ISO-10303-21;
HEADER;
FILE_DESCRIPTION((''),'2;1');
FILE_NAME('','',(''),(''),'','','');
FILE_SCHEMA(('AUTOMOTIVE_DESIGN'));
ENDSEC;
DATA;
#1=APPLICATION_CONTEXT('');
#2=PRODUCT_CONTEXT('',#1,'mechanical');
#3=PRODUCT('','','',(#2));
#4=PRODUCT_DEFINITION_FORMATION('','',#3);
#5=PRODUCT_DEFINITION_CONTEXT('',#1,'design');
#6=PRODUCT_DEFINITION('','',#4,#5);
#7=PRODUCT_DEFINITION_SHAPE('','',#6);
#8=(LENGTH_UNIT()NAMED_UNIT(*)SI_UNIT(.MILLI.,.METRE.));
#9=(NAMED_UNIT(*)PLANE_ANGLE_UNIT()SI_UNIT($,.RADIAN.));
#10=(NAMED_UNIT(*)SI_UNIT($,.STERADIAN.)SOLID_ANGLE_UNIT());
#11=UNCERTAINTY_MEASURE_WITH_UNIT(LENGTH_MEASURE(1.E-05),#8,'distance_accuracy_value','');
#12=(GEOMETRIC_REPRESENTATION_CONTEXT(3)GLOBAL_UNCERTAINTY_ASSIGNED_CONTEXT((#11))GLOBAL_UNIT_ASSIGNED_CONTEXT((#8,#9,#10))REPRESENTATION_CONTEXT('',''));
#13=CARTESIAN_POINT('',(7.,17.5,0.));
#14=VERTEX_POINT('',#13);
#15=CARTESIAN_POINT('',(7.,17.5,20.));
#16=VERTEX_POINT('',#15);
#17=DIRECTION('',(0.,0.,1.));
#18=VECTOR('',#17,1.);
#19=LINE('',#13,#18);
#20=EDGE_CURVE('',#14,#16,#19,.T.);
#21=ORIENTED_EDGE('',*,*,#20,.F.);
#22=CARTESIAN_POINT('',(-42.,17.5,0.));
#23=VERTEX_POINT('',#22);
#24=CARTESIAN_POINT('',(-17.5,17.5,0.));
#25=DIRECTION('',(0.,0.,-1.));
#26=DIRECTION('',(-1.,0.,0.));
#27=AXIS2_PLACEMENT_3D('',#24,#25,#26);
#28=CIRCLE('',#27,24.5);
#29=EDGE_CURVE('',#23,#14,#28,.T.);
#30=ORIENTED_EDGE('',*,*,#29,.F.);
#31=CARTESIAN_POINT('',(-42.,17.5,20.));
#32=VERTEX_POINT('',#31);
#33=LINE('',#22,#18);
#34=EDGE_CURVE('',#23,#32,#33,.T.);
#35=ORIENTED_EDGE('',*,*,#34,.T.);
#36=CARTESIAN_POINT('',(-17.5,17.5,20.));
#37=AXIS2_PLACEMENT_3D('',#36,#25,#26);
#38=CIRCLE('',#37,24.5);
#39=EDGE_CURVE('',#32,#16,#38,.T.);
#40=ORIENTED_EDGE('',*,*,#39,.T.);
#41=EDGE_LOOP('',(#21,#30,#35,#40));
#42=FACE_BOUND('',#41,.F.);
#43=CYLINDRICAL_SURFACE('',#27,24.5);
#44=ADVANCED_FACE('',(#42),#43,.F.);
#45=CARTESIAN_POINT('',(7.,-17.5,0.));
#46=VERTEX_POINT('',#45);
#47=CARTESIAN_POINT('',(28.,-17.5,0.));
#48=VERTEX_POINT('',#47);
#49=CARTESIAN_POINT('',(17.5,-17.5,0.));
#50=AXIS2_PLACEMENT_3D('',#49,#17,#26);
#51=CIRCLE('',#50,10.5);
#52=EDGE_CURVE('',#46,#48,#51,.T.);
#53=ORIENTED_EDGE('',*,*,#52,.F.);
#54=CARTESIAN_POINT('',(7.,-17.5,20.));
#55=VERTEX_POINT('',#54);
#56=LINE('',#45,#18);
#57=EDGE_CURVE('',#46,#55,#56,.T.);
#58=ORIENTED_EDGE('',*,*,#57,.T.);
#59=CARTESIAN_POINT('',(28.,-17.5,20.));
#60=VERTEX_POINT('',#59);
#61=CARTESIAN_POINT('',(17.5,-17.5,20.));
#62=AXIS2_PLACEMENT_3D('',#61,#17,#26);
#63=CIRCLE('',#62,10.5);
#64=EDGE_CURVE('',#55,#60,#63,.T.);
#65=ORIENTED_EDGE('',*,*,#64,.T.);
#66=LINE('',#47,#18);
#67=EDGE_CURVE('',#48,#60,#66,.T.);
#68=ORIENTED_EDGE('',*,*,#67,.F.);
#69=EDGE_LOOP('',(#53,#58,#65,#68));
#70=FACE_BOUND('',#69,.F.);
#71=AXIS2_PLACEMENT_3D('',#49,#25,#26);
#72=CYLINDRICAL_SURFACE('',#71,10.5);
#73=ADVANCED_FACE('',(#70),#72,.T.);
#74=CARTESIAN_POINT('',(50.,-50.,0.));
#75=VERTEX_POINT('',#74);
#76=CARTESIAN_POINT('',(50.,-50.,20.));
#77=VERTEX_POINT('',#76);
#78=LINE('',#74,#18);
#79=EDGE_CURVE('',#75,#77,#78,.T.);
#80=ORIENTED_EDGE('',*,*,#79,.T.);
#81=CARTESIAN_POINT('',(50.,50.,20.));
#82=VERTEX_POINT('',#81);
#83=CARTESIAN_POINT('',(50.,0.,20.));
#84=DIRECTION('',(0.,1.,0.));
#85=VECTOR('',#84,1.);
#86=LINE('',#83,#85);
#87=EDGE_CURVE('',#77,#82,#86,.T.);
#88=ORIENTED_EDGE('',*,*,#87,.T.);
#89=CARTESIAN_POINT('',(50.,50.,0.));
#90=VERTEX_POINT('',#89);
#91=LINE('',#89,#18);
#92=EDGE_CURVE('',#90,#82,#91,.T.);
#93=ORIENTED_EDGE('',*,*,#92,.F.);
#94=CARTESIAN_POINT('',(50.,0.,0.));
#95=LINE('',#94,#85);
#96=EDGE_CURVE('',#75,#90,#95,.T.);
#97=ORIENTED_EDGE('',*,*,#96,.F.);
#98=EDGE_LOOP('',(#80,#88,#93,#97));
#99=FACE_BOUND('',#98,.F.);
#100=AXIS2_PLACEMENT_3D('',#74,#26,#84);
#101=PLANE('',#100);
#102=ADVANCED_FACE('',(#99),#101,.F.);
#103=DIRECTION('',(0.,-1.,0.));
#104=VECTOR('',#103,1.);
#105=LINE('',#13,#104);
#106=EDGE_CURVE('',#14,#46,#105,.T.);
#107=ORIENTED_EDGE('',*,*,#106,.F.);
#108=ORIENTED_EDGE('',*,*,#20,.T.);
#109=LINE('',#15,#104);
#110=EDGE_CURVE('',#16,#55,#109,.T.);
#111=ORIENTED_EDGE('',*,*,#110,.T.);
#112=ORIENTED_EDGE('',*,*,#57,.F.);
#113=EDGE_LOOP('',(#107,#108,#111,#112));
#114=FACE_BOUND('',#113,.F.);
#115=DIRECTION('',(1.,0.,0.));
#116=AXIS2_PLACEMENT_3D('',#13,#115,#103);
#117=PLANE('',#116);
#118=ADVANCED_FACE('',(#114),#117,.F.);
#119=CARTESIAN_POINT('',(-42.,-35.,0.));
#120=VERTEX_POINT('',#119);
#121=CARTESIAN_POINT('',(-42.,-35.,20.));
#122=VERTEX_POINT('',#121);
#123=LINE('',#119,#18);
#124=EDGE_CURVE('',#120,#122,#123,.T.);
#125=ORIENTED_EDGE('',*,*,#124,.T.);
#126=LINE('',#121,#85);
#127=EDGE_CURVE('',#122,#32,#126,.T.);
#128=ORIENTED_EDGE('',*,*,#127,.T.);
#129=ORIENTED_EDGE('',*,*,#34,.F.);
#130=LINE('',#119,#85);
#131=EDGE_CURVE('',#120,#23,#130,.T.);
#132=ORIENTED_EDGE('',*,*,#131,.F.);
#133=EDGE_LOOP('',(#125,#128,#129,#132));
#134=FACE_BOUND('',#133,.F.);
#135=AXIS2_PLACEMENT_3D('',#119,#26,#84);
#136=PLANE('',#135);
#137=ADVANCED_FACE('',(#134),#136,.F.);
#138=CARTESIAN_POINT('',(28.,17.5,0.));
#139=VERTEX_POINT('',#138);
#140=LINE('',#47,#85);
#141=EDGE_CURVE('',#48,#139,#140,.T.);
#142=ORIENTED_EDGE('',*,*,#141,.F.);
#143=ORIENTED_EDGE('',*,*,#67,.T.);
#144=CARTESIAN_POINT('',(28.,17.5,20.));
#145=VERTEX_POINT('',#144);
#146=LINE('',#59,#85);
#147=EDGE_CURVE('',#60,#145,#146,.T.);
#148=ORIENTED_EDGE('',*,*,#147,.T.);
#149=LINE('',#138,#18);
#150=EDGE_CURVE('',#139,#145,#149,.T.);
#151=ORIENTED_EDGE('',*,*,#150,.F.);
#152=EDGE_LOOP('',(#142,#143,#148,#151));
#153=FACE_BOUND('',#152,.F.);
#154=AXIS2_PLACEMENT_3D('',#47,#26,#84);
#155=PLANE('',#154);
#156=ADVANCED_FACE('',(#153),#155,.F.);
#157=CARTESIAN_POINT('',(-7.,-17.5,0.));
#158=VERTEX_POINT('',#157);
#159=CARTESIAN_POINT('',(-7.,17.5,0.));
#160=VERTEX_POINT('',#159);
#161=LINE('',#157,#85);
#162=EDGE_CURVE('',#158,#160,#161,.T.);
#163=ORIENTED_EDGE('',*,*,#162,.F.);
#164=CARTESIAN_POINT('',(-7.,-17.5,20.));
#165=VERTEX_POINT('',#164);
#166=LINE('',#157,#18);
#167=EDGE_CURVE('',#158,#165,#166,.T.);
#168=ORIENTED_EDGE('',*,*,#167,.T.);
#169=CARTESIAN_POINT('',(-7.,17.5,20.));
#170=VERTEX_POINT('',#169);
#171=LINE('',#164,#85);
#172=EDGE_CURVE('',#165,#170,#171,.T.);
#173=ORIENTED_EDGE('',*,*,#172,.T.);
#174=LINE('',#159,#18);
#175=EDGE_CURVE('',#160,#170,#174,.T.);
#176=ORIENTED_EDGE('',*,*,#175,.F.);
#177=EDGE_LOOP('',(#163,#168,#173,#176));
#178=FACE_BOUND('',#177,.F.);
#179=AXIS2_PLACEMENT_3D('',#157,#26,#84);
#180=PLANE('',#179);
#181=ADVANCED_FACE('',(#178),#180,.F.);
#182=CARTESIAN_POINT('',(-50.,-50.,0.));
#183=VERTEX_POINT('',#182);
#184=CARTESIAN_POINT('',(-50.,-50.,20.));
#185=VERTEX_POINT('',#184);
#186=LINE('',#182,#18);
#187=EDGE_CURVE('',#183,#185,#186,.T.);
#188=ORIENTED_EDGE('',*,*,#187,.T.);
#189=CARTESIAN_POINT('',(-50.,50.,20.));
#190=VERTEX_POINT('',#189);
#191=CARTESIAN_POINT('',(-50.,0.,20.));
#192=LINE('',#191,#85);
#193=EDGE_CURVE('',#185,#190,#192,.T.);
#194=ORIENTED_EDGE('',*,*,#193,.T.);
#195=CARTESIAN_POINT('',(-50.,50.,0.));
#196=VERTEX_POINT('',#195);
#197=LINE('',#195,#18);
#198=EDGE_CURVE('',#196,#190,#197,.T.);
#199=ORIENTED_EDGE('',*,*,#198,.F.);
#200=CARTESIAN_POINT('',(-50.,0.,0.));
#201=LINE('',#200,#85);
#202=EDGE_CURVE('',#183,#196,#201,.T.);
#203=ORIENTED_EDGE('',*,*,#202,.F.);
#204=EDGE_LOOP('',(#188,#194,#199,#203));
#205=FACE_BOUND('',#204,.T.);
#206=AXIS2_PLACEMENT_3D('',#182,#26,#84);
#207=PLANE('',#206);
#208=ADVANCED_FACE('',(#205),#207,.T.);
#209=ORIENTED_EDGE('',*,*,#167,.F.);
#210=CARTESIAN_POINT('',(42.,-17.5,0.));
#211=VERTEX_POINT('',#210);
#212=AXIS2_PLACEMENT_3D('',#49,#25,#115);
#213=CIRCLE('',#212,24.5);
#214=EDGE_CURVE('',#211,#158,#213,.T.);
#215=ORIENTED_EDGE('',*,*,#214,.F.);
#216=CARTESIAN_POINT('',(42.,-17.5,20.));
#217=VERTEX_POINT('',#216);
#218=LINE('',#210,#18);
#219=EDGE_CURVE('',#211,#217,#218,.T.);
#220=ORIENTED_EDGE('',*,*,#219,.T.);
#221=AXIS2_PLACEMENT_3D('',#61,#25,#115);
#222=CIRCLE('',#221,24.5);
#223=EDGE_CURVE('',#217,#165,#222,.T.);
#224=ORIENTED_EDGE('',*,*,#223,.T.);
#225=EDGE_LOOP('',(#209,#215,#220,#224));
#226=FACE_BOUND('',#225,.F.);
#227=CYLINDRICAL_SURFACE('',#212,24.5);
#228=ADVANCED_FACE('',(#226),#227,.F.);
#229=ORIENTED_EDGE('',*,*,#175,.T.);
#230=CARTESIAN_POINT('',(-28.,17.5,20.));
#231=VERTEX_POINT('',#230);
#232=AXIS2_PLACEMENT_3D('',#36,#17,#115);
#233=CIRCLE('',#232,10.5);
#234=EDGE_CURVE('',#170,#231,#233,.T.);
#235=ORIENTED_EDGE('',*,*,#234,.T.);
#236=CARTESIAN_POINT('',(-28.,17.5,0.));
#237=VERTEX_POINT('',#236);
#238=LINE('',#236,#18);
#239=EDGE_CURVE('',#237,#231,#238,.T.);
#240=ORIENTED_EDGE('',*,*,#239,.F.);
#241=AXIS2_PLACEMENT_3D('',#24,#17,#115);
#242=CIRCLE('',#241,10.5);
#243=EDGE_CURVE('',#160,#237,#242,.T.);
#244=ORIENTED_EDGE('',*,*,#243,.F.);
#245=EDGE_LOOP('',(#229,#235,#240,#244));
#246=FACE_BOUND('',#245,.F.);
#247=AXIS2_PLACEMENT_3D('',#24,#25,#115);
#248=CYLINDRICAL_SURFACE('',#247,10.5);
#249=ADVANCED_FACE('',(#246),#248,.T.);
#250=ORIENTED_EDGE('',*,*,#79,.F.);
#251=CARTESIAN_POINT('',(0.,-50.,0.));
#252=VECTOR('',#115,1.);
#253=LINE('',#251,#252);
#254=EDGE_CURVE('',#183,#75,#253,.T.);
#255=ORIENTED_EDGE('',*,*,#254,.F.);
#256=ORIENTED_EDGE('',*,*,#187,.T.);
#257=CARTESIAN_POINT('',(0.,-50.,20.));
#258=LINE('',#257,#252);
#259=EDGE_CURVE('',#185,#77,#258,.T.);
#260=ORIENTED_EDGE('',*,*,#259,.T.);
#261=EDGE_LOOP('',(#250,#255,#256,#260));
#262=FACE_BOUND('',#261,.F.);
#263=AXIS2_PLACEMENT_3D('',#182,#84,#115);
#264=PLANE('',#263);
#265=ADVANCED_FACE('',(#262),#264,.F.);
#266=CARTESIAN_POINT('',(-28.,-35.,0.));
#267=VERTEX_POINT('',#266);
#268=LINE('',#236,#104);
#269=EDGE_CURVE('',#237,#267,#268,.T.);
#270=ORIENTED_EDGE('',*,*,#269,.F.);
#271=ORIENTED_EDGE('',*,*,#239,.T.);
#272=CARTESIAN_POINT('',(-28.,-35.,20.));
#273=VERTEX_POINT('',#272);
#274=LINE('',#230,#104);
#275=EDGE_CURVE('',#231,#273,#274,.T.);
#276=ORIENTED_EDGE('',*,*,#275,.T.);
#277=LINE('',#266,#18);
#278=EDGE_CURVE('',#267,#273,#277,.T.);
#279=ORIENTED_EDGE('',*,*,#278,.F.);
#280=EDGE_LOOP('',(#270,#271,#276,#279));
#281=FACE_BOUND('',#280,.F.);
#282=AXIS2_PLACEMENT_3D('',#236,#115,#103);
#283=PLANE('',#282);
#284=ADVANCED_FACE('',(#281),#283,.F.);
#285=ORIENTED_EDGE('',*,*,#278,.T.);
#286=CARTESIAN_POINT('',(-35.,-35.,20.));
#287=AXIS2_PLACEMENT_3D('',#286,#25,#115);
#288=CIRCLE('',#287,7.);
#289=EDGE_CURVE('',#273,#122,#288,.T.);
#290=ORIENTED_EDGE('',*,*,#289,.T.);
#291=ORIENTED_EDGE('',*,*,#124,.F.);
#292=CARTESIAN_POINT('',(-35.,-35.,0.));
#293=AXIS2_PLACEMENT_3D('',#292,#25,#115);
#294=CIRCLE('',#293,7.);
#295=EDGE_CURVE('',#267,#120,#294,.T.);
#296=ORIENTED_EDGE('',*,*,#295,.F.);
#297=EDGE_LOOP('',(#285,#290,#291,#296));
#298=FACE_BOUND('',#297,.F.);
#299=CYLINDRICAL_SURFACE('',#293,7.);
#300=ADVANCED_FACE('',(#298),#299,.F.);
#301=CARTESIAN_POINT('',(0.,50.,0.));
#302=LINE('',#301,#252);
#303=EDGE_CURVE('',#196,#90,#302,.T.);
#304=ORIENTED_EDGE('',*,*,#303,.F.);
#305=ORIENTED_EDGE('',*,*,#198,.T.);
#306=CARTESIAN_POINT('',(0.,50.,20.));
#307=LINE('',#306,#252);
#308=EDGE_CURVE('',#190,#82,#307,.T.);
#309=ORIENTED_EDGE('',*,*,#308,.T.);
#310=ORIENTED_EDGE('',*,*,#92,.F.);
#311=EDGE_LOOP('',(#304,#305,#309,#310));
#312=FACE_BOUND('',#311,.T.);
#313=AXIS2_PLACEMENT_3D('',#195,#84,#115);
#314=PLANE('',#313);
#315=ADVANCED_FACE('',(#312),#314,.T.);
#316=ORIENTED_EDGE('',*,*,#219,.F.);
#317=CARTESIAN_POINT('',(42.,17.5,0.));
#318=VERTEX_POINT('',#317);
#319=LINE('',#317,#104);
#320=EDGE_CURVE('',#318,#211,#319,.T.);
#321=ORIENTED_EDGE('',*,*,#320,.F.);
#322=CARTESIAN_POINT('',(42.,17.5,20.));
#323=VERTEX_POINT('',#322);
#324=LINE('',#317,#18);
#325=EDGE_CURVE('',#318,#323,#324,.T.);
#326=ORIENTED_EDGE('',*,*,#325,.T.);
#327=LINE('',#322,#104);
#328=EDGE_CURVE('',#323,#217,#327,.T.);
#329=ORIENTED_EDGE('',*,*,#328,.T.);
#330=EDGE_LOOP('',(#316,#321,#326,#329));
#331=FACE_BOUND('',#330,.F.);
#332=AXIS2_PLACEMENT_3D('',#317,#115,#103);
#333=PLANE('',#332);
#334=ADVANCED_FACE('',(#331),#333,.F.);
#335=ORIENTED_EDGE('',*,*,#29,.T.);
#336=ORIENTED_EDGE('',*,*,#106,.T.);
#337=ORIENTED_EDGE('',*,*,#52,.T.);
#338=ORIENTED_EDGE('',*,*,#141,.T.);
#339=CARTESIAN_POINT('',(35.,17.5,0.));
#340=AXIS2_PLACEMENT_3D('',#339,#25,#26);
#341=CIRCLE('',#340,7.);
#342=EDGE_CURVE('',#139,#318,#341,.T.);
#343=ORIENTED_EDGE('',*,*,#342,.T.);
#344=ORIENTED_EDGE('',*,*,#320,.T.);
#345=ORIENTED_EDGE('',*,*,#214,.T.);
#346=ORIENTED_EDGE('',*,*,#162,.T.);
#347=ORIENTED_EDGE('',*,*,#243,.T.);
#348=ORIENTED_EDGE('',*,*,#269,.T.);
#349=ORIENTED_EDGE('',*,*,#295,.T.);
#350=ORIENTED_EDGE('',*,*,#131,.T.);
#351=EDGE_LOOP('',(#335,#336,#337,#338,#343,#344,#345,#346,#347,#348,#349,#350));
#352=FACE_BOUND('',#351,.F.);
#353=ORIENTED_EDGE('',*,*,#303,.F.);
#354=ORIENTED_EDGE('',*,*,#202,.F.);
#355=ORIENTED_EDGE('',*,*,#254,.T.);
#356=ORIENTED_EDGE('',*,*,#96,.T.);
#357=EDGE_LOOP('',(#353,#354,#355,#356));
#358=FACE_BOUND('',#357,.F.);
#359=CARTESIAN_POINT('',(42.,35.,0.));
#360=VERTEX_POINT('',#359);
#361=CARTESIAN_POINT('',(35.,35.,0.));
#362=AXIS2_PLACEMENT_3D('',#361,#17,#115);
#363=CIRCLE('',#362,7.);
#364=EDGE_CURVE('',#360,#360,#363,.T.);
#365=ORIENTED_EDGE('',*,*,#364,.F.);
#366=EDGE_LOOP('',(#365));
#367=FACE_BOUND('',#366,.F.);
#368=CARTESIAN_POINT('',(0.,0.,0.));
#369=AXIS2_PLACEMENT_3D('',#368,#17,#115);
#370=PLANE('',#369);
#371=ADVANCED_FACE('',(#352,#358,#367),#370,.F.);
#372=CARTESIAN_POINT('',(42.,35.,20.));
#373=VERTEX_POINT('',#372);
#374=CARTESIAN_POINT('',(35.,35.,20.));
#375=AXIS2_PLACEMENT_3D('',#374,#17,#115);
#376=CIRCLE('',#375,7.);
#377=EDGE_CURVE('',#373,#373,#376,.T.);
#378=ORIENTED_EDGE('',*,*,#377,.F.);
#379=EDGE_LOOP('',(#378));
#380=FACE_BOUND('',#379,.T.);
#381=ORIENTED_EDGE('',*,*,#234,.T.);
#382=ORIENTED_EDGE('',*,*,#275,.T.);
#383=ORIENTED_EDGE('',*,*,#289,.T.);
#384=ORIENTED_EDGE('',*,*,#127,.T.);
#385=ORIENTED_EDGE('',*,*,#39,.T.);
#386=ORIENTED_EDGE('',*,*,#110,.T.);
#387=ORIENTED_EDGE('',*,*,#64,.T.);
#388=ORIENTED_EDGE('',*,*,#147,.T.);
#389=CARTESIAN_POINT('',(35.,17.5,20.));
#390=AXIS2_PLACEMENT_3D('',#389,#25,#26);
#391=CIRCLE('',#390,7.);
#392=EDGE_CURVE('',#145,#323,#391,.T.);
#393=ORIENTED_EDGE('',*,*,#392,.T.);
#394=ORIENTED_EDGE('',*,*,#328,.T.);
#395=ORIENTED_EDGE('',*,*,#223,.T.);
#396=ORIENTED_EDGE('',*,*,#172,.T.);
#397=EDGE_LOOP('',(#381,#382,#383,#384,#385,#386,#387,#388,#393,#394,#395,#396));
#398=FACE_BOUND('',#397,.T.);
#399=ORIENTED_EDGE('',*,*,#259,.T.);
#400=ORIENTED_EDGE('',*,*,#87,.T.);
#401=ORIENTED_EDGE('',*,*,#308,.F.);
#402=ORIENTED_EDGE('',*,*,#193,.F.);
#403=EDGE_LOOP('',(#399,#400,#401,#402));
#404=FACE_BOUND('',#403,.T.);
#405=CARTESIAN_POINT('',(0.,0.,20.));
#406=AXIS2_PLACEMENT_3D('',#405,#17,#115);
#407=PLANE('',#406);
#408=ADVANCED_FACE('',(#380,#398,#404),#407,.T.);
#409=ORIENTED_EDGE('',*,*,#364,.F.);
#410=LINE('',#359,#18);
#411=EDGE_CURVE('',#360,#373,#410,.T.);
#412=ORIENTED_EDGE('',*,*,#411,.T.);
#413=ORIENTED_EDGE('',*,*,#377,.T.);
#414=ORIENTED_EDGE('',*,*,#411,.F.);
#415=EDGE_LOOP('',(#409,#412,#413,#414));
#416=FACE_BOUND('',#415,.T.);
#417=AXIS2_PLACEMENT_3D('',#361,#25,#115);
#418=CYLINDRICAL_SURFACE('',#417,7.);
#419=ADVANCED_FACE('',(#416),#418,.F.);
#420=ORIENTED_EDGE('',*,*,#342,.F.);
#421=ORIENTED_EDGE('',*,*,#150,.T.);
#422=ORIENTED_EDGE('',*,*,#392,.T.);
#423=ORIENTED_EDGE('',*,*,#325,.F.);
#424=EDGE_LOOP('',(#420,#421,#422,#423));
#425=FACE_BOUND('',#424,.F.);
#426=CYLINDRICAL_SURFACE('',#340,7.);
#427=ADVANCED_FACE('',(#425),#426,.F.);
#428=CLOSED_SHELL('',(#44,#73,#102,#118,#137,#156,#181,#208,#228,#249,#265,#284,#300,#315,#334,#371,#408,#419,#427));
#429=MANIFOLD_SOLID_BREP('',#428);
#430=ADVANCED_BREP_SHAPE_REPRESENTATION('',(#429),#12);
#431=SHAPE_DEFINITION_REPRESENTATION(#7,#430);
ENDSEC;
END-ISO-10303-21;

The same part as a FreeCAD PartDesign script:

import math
import FreeCAD as App
import Part
import Sketcher
Q = App.Units.Quantity


def add_polygon(sketch, points):
    """Adds a closed chain of lines whose ends are joined by coincident constraints."""
    first, n = sketch.GeometryCount, len(points)
    for a, b in zip(points, points[1:] + points[:1]):
        sketch.addGeometry(Part.LineSegment(App.Vector(*a, 0), App.Vector(*b, 0)), False)
    for i in range(n):
        sketch.addConstraint(Sketcher.Constraint("Coincident", first + i, 2, first + (i + 1) % n, 1))

doc = App.newDocument("Part")
body = doc.addObject("PartDesign::Body", "Body")

# Sketch on XY plane
sketch1 = body.newObject("Sketcher::SketchObject", "Sketch")
sketch1.AttachmentSupport = (doc.getObject("XY_Plane"), [""])
sketch1.MapMode = "FlatFace"
add_polygon(sketch1, [(-50, 50), (-50, -50), (50, -50), (50, 50)])  # lines 0-3
sketch1.addGeometry(Part.LineSegment(App.Vector(-28, 18, 0), App.Vector(-28, -35, 0)), False)  # 4
sketch1.addGeometry(Part.ArcOfCircle(Part.Circle(App.Vector(-35, -35, 0), App.Vector(0, 0, 1), 7), math.radians(180), math.radians(360)), False)  # 5
sketch1.addGeometry(Part.LineSegment(App.Vector(-42, -35, 0), App.Vector(-42, 18, 0)), False)  # 6
sketch1.addGeometry(Part.ArcOfCircle(Part.Circle(App.Vector(-18, 18, 0), App.Vector(0, 0, 1), 24), math.radians(0), math.radians(180)), False)  # 7
sketch1.addGeometry(Part.LineSegment(App.Vector(7, 18, 0), App.Vector(7, -18, 0)), False)  # 8
sketch1.addGeometry(Part.ArcOfCircle(Part.Circle(App.Vector(18, -18, 0), App.Vector(0, 0, 1), 10), math.radians(180), math.radians(360)), False)  # 9
sketch1.addGeometry(Part.LineSegment(App.Vector(28, -18, 0), App.Vector(28, 18, 0)), False)  # 10
sketch1.addGeometry(Part.ArcOfCircle(Part.Circle(App.Vector(35, 18, 0), App.Vector(0, 0, 1), 7), math.radians(0), math.radians(180)), False)  # 11
sketch1.addGeometry(Part.LineSegment(App.Vector(42, 18, 0), App.Vector(42, -18, 0)), False)  # 12
sketch1.addGeometry(Part.ArcOfCircle(Part.Circle(App.Vector(18, -18, 0), App.Vector(0, 0, 1), 24), math.radians(180), math.radians(360)), False)  # 13
sketch1.addGeometry(Part.LineSegment(App.Vector(-7, -18, 0), App.Vector(-7, 18, 0)), False)  # 14
sketch1.addGeometry(Part.ArcOfCircle(Part.Circle(App.Vector(-18, 18, 0), App.Vector(0, 0, 1), 10), math.radians(0), math.radians(180)), False)  # 15
sketch1.addGeometry(Part.Circle(App.Vector(35, 35, 0), App.Vector(0, 0, 1), 7), False)  # 16
sketch1.addConstraint([
    Sketcher.Constraint("Tangent", 4, 2, 5, 2),
    Sketcher.Constraint("Tangent", 5, 1, 6, 1),
    Sketcher.Constraint("Tangent", 6, 2, 7, 2),
    Sketcher.Constraint("Tangent", 7, 1, 8, 1),
    Sketcher.Constraint("Tangent", 8, 2, 9, 1),
    Sketcher.Constraint("Tangent", 9, 2, 10, 1),
    Sketcher.Constraint("Tangent", 10, 2, 11, 2),
    Sketcher.Constraint("Tangent", 11, 1, 12, 1),
    Sketcher.Constraint("Tangent", 12, 2, 13, 2),
    Sketcher.Constraint("Tangent", 13, 1, 14, 1),
    Sketcher.Constraint("Tangent", 14, 2, 15, 1),
    Sketcher.Constraint("Tangent", 15, 2, 4, 1),
    Sketcher.Constraint("Vertical", 0),
    Sketcher.Constraint("Horizontal", 1),
    Sketcher.Constraint("Vertical", 2),
    Sketcher.Constraint("Horizontal", 3),
    Sketcher.Constraint("Vertical", 4),
    Sketcher.Constraint("Vertical", 6),
    Sketcher.Constraint("Vertical", 8),
    Sketcher.Constraint("Vertical", 10),
    Sketcher.Constraint("Vertical", 12),
    Sketcher.Constraint("Vertical", 14),
    Sketcher.Constraint("Coincident", 13, 3, 9, 3),
    Sketcher.Constraint("Coincident", 15, 3, 7, 3),
    Sketcher.Constraint("Equal", 7, 13),
    Sketcher.Constraint("Equal", 11, 16),
    Sketcher.Constraint("Symmetric", 7, 3, 9, 3, -1, 1),
    Sketcher.Constraint("Symmetric", 5, 3, 16, 3, -1, 1),
    Sketcher.Constraint("Symmetric", 0, 2, 2, 2, -1, 1),
    Sketcher.Constraint("Horizontal", 7, 3, 11, 3),
    Sketcher.Constraint("Equal", 3, 0),
    Sketcher.Constraint("Diameter", 16, Q("14 mm")),
    Sketcher.Constraint("Radius", 7, Q("24.5 mm")),
    Sketcher.Constraint("DistanceX", 1, 1, 1, 2, Q("100 mm")),
    Sketcher.Constraint("DistanceY", 8, 2, 8, 1, Q("35 mm")),
    Sketcher.Constraint("DistanceY", 4, 2, 4, 1, Q("52.5 mm")),
])
pad1 = body.newObject("PartDesign::Pad", "Pad")
pad1.Profile = sketch1
pad1.Length = 20

doc.recompute()
